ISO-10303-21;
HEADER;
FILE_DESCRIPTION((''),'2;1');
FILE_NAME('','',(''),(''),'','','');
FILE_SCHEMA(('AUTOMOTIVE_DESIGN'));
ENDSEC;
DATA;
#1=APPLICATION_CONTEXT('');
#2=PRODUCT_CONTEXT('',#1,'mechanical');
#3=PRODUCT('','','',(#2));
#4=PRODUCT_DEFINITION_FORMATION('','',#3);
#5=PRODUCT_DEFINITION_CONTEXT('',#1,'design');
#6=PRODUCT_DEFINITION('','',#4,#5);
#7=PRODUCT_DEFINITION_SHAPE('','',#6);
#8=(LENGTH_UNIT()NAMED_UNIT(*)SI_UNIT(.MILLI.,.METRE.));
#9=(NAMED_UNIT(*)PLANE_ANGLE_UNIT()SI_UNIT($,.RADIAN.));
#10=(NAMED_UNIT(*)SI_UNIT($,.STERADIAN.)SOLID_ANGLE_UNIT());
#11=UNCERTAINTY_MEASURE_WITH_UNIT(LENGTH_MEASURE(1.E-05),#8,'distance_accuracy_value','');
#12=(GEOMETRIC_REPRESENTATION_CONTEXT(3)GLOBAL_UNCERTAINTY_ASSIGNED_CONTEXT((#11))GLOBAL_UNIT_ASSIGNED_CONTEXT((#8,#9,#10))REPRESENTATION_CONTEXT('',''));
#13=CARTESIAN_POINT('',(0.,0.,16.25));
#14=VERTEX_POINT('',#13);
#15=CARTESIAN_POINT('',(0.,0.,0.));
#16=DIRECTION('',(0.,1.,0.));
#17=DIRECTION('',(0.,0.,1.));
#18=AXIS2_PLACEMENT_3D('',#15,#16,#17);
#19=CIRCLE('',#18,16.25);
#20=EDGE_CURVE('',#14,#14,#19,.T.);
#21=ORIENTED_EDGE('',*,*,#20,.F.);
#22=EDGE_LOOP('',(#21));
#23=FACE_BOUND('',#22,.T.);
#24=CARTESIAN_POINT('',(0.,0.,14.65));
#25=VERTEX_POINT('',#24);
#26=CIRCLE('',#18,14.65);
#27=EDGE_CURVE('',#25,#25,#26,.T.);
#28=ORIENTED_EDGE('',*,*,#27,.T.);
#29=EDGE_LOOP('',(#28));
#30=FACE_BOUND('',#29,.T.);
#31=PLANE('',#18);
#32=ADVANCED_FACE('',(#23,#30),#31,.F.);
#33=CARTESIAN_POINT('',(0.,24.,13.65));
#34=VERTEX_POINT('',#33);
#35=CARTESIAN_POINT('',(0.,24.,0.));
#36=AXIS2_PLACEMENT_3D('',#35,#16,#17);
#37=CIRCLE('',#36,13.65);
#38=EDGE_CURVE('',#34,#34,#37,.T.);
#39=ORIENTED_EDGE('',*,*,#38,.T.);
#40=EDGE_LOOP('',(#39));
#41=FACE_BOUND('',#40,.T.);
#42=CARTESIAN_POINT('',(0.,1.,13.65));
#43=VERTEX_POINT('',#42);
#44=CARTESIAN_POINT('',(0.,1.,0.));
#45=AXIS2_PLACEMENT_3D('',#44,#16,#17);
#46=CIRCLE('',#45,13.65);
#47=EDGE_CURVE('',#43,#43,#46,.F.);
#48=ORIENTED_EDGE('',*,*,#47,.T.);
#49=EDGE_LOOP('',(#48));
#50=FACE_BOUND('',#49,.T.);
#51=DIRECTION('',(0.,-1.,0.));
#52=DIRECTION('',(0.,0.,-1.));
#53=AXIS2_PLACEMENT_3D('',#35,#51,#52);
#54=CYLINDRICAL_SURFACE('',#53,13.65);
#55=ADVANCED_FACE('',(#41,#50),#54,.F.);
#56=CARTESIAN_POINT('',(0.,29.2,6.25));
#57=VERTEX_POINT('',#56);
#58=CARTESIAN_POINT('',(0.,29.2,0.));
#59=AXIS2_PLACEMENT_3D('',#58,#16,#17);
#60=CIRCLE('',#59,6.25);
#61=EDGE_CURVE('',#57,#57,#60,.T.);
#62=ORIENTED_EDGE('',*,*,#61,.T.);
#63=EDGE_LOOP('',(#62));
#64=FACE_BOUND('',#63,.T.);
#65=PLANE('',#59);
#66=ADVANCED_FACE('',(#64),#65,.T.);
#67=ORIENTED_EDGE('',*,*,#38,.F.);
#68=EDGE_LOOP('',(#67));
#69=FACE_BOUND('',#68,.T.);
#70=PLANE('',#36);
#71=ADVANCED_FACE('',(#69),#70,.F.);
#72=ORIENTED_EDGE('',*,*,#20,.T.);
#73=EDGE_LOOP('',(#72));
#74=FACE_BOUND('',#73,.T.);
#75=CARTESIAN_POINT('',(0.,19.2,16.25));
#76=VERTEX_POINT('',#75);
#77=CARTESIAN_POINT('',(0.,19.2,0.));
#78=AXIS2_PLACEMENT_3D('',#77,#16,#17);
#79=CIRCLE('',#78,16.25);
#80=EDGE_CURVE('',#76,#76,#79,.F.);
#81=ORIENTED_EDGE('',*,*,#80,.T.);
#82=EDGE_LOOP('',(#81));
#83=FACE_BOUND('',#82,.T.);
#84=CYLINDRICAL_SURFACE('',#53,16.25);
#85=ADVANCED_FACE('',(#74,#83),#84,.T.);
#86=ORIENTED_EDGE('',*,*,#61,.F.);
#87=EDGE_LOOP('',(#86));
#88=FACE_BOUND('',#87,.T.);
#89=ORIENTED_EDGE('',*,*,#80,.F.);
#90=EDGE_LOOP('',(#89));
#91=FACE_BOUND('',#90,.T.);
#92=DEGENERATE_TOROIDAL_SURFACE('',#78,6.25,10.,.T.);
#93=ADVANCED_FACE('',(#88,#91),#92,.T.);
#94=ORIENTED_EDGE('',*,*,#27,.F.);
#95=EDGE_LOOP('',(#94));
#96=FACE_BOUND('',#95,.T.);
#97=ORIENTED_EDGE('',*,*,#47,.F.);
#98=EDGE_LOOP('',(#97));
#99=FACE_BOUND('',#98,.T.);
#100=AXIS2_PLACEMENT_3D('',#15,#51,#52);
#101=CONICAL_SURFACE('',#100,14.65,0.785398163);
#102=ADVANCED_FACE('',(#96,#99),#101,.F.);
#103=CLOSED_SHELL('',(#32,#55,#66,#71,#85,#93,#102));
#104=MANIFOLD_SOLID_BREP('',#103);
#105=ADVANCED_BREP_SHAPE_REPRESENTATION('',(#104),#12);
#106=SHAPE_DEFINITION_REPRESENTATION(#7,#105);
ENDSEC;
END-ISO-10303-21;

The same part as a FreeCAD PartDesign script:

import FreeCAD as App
import Part
import Sketcher
from FreeCAD import Vector


def edges_at(feature, points):
    """Names of the edges that pass closest to the given points."""
    edges = feature.Shape.Edges
    near = lambda p: min(range(len(edges)), key=lambda i: edges[i].distToShape(Part.Vertex(*p))[0])
    return sorted({f"Edge{near(p) + 1}" for p in points})

doc = App.newDocument("Part")
params = doc.addObject("Spreadsheet::Sheet", "Params")
for row, (alias, value) in enumerate([
    ("sketch1_diameter", "32.5 mm"),
    ("sketch1_diameter2", "27.3 mm"),
    ("pad1_length", "24 mm"),
    ("chamfer_size", "1 mm"),
    ("sketch2_diameter", "32.5 mm"),
    ("pad2_length", "5.2 mm"),
    ("fillet_radius", "10 mm"),
], start=1):
    params.set(f"A{row}", alias)
    params.set(f"B{row}", "=" + value)
    params.setAlias(f"B{row}", alias)

body = doc.addObject("PartDesign::Body", "Body")

sketch1 = body.newObject("Sketcher::SketchObject", "Sketch")
sketch1.AttachmentSupport = (doc.getObject("XZ_Plane"), [""])
sketch1.MapMode = "FlatFace"
sketch1.addGeometry([
    Part.Circle(Vector(0, 0, 0), Vector(0, 0, 1), 16.25),
    Part.Circle(Vector(0, 0, 0), Vector(0, 0, 1), 13.65),
], False)
sketch1.addConstraint([
    Sketcher.Constraint("Coincident", 0, 3, -1, 1),
    Sketcher.Constraint("Coincident", 1, 3, -1, 1),
    Sketcher.Constraint("Diameter", 0, 32.5),
    Sketcher.Constraint("Diameter", 1, 27.3),
])
sketch1.setExpression("Constraints[2]", "Params.sketch1_diameter")
sketch1.setExpression("Constraints[3]", "Params.sketch1_diameter2")
pad1 = body.newObject("PartDesign::Pad", "Pad")
pad1.Profile = sketch1
pad1.setExpression("Length", "Params.pad1_length")
pad1.Reversed = True
doc.recompute()

chamfer = body.newObject("PartDesign::Chamfer", "Chamfer")
chamfer.Base = (pad1, edges_at(pad1, [(0, 0, -13.65)]))
chamfer.setExpression("Size", "Params.chamfer_size")

sketch2 = body.newObject("Sketcher::SketchObject", "Sketch001")
sketch2.AttachmentSupport = (doc.getObject("XZ_Plane"), [""])
sketch2.MapMode = "FlatFace"
sketch2.AttachmentOffset = App.Placement(Vector(0, 0, -24), App.Rotation())
sketch2.addGeometry(Part.Circle(Vector(0, 0, 0), Vector(0, 0, 1), 16.25), False)
sketch2.addConstraint([
    Sketcher.Constraint("Coincident", 0, 3, -1, 1),
    Sketcher.Constraint("Diameter", 0, 32.5),
])
sketch2.setExpression("Constraints[1]", "Params.sketch2_diameter")
pad2 = body.newObject("PartDesign::Pad", "Pad001")
pad2.Profile = sketch2
pad2.setExpression("Length", "Params.pad2_length")
pad2.Reversed = True
doc.recompute()

fillet = body.newObject("PartDesign::Fillet", "Fillet")
fillet.Base = (pad2, edges_at(pad2, [(0, 29.2, -16.25)]))
fillet.setExpression("Radius", "Params.fillet_radius")

doc.recompute()
